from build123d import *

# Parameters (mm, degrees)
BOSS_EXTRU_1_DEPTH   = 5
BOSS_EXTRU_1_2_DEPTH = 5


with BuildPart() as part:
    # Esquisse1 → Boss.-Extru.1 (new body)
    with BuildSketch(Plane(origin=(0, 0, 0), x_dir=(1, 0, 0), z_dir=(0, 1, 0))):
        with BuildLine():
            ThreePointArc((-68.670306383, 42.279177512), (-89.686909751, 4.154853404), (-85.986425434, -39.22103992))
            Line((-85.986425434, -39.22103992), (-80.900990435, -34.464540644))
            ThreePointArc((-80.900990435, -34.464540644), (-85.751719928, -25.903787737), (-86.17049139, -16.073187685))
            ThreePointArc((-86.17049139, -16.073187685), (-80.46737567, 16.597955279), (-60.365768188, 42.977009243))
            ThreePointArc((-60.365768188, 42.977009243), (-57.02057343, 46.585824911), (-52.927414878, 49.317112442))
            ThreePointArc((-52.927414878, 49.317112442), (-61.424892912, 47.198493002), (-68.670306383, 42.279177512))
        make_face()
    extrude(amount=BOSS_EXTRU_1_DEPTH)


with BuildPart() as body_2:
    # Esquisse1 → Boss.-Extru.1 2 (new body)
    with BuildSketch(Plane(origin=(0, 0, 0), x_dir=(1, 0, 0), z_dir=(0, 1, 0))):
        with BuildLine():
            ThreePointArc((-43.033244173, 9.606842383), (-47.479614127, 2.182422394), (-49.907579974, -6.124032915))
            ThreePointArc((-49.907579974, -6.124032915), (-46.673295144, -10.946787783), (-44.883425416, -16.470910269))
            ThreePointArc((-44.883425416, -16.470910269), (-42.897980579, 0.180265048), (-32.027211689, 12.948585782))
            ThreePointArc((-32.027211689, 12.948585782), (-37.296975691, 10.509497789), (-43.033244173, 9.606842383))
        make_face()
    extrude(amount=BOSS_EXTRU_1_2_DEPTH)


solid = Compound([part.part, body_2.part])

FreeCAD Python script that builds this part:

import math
import FreeCAD as App
import Part
import Sketcher

V = App.Vector
Q = App.Units.Quantity

doc = App.newDocument("Part")
body = doc.addObject("PartDesign::Body", "Body")

# Sketch on XZ plane
sketch1 = body.newObject("Sketcher::SketchObject", "Sketch")
sketch1.AttachmentSupport = (doc.getObject("XZ_Plane"), [""])
sketch1.MapMode = "FlatFace"
sketch1.addGeometry([
    Part.ArcOfCircle(Part.Circle(V(-16.324506, 11.432248, 0), V(0, 0, 1), 75), math.radians(158.25248), math.radians(225.737717)),  # 0
    Part.LineSegment(V(-85.986425, 39.22104, 0), V(-80.90099, 34.464541, 0)),  # 1
    Part.ArcOfCircle(Part.Circle(V(-65.564022, 20.119597, 0), V(0, 0, 1), 21), math.radians(136.914219), math.radians(191.109587)),  # 2
    Part.ArcOfCircle(Part.Circle(V(-16.324506, 11.432248, 0), V(0, 0, 1), 70), math.radians(176.19855), math.radians(231.011759)),  # 3
    Part.ArcOfCircle(Part.Circle(V(-43.398136, -30.603672, 0), V(0, 0, 1), 21), math.radians(-143.899278), math.radians(-116.986154)),  # 4
    Part.ArcOfCircle(Part.Circle(V(-51.221706, -24.375369, 0), V(0, 0, 1), 25), math.radians(-134.262283), math.radians(-93.912236)),  # 5
], False)
sketch1.addConstraint([
    Sketcher.Constraint("Coincident", 0, 1, 1, 1),
    Sketcher.Constraint("Coincident", 1, 2, 2, 1),
    Sketcher.Constraint("Coincident", 2, 2, 3, 1),
    Sketcher.Constraint("Coincident", 3, 2, 4, 1),
    Sketcher.Constraint("Coincident", 4, 2, 5, 2),
    Sketcher.Constraint("Tangent", 5, 1, 0, 2),
    Sketcher.Constraint("Coincident", 3, 3, 0, 3),
    Sketcher.Constraint("Equal", 2, 4),
    Sketcher.Constraint("Radius", 0, Q("75 mm")),
    Sketcher.Constraint("Radius", 2, Q("21 mm")),
    Sketcher.Constraint("Radius", 3, Q("70 mm")),
    Sketcher.Constraint("Radius", 5, Q("25 mm")),
    Sketcher.Constraint("DistanceX", 5, 3, 0, 3, Q("34.8972 mm")),
    Sketcher.Constraint("DistanceY", 1, 2, 0, 1, Q("4.756499 mm")),
    Sketcher.Constraint("DistanceX", 2, 2, 1, 2, Q("5.269501 mm")),
    Sketcher.Constraint("DistanceY", 4, 3, -1, 1, Q("30.603672 mm")),
    Sketcher.Constraint("DistanceY", 5, 3, -1, 1, Q("24.375369 mm")),
    Sketcher.Constraint("DistanceY", -1, 1, 0, 1, Q("39.22104 mm")),
    Sketcher.Constraint("DistanceX", 1, 2, -1, 1, Q("80.90099 mm")),
    Sketcher.Constraint("DistanceX", 3, 2, -1, 1, Q("60.365768 mm")),
    Sketcher.Constraint("DistanceY", 3, 2, -1, 1, Q("42.977009 mm")),
])
pad1 = body.newObject("PartDesign::Pad", "Pad")
pad1.Profile = sketch1
pad1.Length = 5
pad1.Reversed = True
body2 = doc.addObject("PartDesign::Body", "Body001")

# Sketch on XZ plane
sketch2 = body2.newObject("Sketcher::SketchObject", "Sketch001")
sketch2.AttachmentSupport = (doc.getObject("XZ_Plane001"), [""])
sketch2.MapMode = "FlatFace"
sketch2.addGeometry([
    Part.ArcOfCircle(Part.Circle(V(-16.324506, 11.432248, 0), V(0, 0, 1), 34), math.radians(-171.018012), math.radians(-141.771679)),
    Part.ArcOfCircle(Part.Circle(V(-65.564022, 20.119597, 0), V(0, 0, 1), 21), math.radians(-41.79408), math.radians(-10.005749)),
    Part.ArcOfCircle(Part.Circle(V(-16.324506, 11.432248, 0), V(0, 0, 1), 29), math.radians(169.994251), math.radians(237.216058)),
    Part.ArcOfCircle(Part.Circle(V(-43.398136, -30.603672, 0), V(0, 0, 1), 21), math.radians(57.216058), math.radians(89.004388)),
], False)
sketch2.addConstraint([
    Sketcher.Constraint("Coincident", 0, 1, 1, 1),
    Sketcher.Constraint("Tangent", 1, 2, 2, 1),
    Sketcher.Constraint("Tangent", 2, 2, 3, 1),
    Sketcher.Constraint("Coincident", 3, 2, 0, 2),
    Sketcher.Constraint("Coincident", 2, 3, 0, 3),
    Sketcher.Constraint("Equal", 1, 3),
    Sketcher.Constraint("Radius", 0, Q("34 mm")),
    Sketcher.Constraint("Radius", 1, Q("21 mm")),
    Sketcher.Constraint("Radius", 2, Q("29 mm")),
    Sketcher.Constraint("DistanceY", 3, 3, -1, 1, Q("30.603672 mm")),
    Sketcher.Constraint("DistanceX", 0, 1, -1, 1, Q("49.90758 mm")),
    Sketcher.Constraint("DistanceY", -1, 1, 1, 2, Q("16.47091 mm")),
    Sketcher.Constraint("DistanceX", 2, 2, -1, 1, Q("32.027212 mm")),
])
pad2 = body2.newObject("PartDesign::Pad", "Pad001")
pad2.Profile = sketch2
pad2.Length = 5
pad2.Reversed = True

doc.recompute()
